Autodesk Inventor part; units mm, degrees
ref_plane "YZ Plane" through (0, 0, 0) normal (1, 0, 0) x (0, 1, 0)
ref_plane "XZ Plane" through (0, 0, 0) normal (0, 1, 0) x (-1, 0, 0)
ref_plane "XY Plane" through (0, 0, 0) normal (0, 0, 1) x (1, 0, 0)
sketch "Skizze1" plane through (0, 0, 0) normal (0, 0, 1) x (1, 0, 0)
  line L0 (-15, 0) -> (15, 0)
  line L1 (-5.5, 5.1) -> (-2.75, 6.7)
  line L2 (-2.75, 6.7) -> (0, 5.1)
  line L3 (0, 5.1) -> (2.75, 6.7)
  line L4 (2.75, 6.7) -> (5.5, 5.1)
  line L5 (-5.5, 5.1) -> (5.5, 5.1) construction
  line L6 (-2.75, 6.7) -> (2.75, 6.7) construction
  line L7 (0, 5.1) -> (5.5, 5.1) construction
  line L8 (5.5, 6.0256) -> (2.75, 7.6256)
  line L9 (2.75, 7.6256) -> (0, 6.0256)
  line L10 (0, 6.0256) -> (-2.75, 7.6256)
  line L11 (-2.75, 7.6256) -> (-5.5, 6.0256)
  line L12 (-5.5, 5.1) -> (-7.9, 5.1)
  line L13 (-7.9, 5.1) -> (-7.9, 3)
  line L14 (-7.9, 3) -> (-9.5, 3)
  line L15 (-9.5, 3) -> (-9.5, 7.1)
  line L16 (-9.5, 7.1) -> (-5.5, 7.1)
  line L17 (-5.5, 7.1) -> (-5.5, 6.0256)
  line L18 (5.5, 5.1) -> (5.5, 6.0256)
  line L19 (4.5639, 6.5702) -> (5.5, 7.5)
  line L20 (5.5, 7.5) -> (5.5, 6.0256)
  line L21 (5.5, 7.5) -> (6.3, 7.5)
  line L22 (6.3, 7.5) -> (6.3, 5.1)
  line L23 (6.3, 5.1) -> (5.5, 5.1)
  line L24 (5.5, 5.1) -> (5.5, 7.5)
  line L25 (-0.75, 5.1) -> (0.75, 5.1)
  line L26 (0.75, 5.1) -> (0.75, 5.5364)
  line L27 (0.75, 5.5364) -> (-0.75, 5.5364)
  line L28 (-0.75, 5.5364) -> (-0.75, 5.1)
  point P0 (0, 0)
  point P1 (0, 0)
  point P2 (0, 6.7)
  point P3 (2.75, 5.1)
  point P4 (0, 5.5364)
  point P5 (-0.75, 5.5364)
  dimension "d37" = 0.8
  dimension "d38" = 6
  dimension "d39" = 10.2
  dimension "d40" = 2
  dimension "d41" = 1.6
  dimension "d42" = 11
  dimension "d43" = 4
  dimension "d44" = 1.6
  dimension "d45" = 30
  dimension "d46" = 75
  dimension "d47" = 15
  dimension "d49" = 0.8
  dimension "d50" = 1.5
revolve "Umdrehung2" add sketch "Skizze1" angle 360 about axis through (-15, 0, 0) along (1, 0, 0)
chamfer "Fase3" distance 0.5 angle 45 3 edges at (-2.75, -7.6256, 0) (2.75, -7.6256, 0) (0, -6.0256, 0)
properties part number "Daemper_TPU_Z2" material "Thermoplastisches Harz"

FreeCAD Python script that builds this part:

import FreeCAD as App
import Part
import Sketcher

V = App.Vector
Q = App.Units.Quantity


def edges_at(feature, points):
    """Names of the edges that pass closest to the given points."""
    edges = feature.Shape.Edges
    near = lambda p: min(range(len(edges)), key=lambda i: edges[i].distToShape(Part.Vertex(*p))[0])
    return sorted({f"Edge{near(p) + 1}" for p in points})

doc = App.newDocument("Part")
body = doc.addObject("PartDesign::Body", "Body")

# Sketch on XY plane
sketch1 = body.newObject("Sketcher::SketchObject", "Sketch")
sketch1.AttachmentSupport = (doc.getObject("XY_Plane"), [""])
sketch1.MapMode = "FlatFace"
sketch1.addGeometry([
    Part.LineSegment(V(-7.9, 5.1, 0), V(-5.5, 5.1, 0)),  # 0
    Part.LineSegment(V(-5.5, 5.1, 0), V(-2.75, 6.7, 0)),  # 1
    Part.LineSegment(V(-2.75, 6.7, 0), V(-0.750016, 5.536373, 0)),  # 2
    Part.LineSegment(V(-0.75, 5.5364, 0), V(-0.75, 5.1, 0)),  # 3
    Part.LineSegment(V(-0.75, 5.1, 0), V(0.75, 5.1, 0)),  # 4
    Part.LineSegment(V(0.75, 5.1, 0), V(0.75, 5.5364, 0)),  # 5
    Part.LineSegment(V(0.750016, 5.536373, 0), V(2.75, 6.7, 0)),  # 6
    Part.LineSegment(V(2.75, 6.7, 0), V(5.5, 5.1, 0)),  # 7
    Part.LineSegment(V(5.5, 5.1, 0), V(6.3, 5.1, 0)),  # 8
    Part.LineSegment(V(6.3, 5.1, 0), V(6.3, 7.5, 0)),  # 9
    Part.LineSegment(V(6.3, 7.5, 0), V(5.5, 7.5, 0)),  # 10
    Part.LineSegment(V(5.5, 7.5, 0), V(4.5639, 6.5702, 0)),  # 11
    Part.LineSegment(V(4.563917, 6.57023, 0), V(2.75, 7.6256, 0)),  # 12
    Part.LineSegment(V(2.75, 7.6256, 0), V(0, 6.0256, 0)),  # 13
    Part.LineSegment(V(0, 6.0256, 0), V(-2.75, 7.6256, 0)),  # 14
    Part.LineSegment(V(-2.75, 7.6256, 0), V(-5.5, 6.0256, 0)),  # 15
    Part.LineSegment(V(-5.5, 6.0256, 0), V(-5.5, 7.1, 0)),  # 16
    Part.LineSegment(V(-5.5, 7.1, 0), V(-9.5, 7.1, 0)),  # 17
    Part.LineSegment(V(-9.5, 7.1, 0), V(-9.5, 3, 0)),  # 18
    Part.LineSegment(V(-9.5, 3, 0), V(-7.9, 3, 0)),  # 19
    Part.LineSegment(V(-7.9, 3, 0), V(-7.9, 5.1, 0)),  # 20
], False)
sketch1.addConstraint([
    Sketcher.Constraint("Coincident", 0, 2, 1, 1),
    Sketcher.Constraint("Coincident", 1, 2, 2, 1),
    Sketcher.Constraint("Coincident", 2, 2, 3, 1),
    Sketcher.Constraint("Coincident", 3, 2, 4, 1),
    Sketcher.Constraint("Coincident", 4, 2, 5, 1),
    Sketcher.Constraint("Coincident", 5, 2, 6, 1),
    Sketcher.Constraint("Coincident", 6, 2, 7, 1),
    Sketcher.Constraint("Coincident", 7, 2, 8, 1),
    Sketcher.Constraint("Coincident", 8, 2, 9, 1),
    Sketcher.Constraint("Coincident", 9, 2, 10, 1),
    Sketcher.Constraint("Coincident", 10, 2, 11, 1),
    Sketcher.Constraint("Coincident", 11, 2, 12, 1),
    Sketcher.Constraint("Coincident", 12, 2, 13, 1),
    Sketcher.Constraint("Coincident", 13, 2, 14, 1),
    Sketcher.Constraint("Coincident", 14, 2, 15, 1),
    Sketcher.Constraint("Coincident", 15, 2, 16, 1),
    Sketcher.Constraint("Coincident", 16, 2, 17, 1),
    Sketcher.Constraint("Coincident", 17, 2, 18, 1),
    Sketcher.Constraint("Coincident", 18, 2, 19, 1),
    Sketcher.Constraint("Coincident", 19, 2, 20, 1),
    Sketcher.Constraint("Coincident", 20, 2, 0, 1),
    Sketcher.Constraint("Horizontal", 0),
    Sketcher.Constraint("Vertical", 3),
    Sketcher.Constraint("Horizontal", 4),
    Sketcher.Constraint("Vertical", 5),
    Sketcher.Constraint("Horizontal", 8),
    Sketcher.Constraint("Vertical", 9),
    Sketcher.Constraint("Horizontal", 10),
    Sketcher.Constraint("Vertical", 16),
    Sketcher.Constraint("Horizontal", 17),
    Sketcher.Constraint("Vertical", 18),
    Sketcher.Constraint("Horizontal", 19),
    Sketcher.Constraint("Vertical", 20),
    Sketcher.Constraint("Symmetric", 2, 2, 5, 2, -2),
    Sketcher.Constraint("Symmetric", 1, 2, 6, 2, -2),
    Sketcher.Constraint("Symmetric", 0, 2, 7, 2, -2),
    Sketcher.Constraint("Symmetric", 12, 2, 14, 2, -2),
    Sketcher.Constraint("PointOnObject", 13, 2, -2),
    Sketcher.Constraint("Parallel", 1, 6),
    Sketcher.Constraint("Parallel", 7, 12),
    Sketcher.Constraint("Parallel", 6, 13),
    Sketcher.Constraint("Parallel", 13, 15),
    Sketcher.Constraint("Horizontal", 0, 2, 3, 2),
    Sketcher.Constraint("Horizontal", 13, 2, 15, 2),
    Sketcher.Constraint("Vertical", 7, 2, 10, 2),
    Sketcher.Constraint("Vertical", 6, 2, 12, 2),
    Sketcher.Constraint("Vertical", 0, 2, 15, 2),
    Sketcher.Constraint("Equal", 0, 9),
    Sketcher.Constraint("DistanceX", 17, 2, 17, 1, Q("4 mm")),
    Sketcher.Constraint("DistanceX", 4, 1, 4, 2, Q("1.5 mm")),
    Sketcher.Constraint("DistanceX", 8, 1, 8, 2, Q("0.8 mm")),
    Sketcher.Constraint("DistanceX", 19, 1, 19, 2, Q("1.6 mm")),
    Sketcher.Constraint("DistanceX", 1, 2, 2, 2, Q("2 mm")),
    Sketcher.Constraint("DistanceY", 0, 2, 16, 2, Q("2 mm")),
    Sketcher.Constraint("DistanceY", 0, 2, 1, 2, Q("1.6 mm")),
    Sketcher.Constraint("DistanceY", 18, 2, 18, 1, Q("4.1 mm")),
    Sketcher.Constraint("DistanceY", -1, 1, 18, 2, Q("3 mm")),
    Sketcher.Constraint("DistanceY", 16, 1, 16, 2, Q("1.0744 mm")),
    Sketcher.Constraint("DistanceX", -1, 1, 11, 2, Q("4.564 mm")),
])
revolution = body.newObject("PartDesign::Revolution", "Revolution")
revolution.Profile = sketch1
revolution.ReferenceAxis = (sketch1, ["H_Axis"])
revolution.Angle = 360
doc.recompute()

chamfer = body.newObject("PartDesign::Chamfer", "Chamfer")
chamfer.Base = (revolution, edges_at(revolution, [(-2.75, -7.626, 0), (2.75, -7.626, 0), (0, -6.026, 0)]))
chamfer.Size = 0.5

doc.recompute()
